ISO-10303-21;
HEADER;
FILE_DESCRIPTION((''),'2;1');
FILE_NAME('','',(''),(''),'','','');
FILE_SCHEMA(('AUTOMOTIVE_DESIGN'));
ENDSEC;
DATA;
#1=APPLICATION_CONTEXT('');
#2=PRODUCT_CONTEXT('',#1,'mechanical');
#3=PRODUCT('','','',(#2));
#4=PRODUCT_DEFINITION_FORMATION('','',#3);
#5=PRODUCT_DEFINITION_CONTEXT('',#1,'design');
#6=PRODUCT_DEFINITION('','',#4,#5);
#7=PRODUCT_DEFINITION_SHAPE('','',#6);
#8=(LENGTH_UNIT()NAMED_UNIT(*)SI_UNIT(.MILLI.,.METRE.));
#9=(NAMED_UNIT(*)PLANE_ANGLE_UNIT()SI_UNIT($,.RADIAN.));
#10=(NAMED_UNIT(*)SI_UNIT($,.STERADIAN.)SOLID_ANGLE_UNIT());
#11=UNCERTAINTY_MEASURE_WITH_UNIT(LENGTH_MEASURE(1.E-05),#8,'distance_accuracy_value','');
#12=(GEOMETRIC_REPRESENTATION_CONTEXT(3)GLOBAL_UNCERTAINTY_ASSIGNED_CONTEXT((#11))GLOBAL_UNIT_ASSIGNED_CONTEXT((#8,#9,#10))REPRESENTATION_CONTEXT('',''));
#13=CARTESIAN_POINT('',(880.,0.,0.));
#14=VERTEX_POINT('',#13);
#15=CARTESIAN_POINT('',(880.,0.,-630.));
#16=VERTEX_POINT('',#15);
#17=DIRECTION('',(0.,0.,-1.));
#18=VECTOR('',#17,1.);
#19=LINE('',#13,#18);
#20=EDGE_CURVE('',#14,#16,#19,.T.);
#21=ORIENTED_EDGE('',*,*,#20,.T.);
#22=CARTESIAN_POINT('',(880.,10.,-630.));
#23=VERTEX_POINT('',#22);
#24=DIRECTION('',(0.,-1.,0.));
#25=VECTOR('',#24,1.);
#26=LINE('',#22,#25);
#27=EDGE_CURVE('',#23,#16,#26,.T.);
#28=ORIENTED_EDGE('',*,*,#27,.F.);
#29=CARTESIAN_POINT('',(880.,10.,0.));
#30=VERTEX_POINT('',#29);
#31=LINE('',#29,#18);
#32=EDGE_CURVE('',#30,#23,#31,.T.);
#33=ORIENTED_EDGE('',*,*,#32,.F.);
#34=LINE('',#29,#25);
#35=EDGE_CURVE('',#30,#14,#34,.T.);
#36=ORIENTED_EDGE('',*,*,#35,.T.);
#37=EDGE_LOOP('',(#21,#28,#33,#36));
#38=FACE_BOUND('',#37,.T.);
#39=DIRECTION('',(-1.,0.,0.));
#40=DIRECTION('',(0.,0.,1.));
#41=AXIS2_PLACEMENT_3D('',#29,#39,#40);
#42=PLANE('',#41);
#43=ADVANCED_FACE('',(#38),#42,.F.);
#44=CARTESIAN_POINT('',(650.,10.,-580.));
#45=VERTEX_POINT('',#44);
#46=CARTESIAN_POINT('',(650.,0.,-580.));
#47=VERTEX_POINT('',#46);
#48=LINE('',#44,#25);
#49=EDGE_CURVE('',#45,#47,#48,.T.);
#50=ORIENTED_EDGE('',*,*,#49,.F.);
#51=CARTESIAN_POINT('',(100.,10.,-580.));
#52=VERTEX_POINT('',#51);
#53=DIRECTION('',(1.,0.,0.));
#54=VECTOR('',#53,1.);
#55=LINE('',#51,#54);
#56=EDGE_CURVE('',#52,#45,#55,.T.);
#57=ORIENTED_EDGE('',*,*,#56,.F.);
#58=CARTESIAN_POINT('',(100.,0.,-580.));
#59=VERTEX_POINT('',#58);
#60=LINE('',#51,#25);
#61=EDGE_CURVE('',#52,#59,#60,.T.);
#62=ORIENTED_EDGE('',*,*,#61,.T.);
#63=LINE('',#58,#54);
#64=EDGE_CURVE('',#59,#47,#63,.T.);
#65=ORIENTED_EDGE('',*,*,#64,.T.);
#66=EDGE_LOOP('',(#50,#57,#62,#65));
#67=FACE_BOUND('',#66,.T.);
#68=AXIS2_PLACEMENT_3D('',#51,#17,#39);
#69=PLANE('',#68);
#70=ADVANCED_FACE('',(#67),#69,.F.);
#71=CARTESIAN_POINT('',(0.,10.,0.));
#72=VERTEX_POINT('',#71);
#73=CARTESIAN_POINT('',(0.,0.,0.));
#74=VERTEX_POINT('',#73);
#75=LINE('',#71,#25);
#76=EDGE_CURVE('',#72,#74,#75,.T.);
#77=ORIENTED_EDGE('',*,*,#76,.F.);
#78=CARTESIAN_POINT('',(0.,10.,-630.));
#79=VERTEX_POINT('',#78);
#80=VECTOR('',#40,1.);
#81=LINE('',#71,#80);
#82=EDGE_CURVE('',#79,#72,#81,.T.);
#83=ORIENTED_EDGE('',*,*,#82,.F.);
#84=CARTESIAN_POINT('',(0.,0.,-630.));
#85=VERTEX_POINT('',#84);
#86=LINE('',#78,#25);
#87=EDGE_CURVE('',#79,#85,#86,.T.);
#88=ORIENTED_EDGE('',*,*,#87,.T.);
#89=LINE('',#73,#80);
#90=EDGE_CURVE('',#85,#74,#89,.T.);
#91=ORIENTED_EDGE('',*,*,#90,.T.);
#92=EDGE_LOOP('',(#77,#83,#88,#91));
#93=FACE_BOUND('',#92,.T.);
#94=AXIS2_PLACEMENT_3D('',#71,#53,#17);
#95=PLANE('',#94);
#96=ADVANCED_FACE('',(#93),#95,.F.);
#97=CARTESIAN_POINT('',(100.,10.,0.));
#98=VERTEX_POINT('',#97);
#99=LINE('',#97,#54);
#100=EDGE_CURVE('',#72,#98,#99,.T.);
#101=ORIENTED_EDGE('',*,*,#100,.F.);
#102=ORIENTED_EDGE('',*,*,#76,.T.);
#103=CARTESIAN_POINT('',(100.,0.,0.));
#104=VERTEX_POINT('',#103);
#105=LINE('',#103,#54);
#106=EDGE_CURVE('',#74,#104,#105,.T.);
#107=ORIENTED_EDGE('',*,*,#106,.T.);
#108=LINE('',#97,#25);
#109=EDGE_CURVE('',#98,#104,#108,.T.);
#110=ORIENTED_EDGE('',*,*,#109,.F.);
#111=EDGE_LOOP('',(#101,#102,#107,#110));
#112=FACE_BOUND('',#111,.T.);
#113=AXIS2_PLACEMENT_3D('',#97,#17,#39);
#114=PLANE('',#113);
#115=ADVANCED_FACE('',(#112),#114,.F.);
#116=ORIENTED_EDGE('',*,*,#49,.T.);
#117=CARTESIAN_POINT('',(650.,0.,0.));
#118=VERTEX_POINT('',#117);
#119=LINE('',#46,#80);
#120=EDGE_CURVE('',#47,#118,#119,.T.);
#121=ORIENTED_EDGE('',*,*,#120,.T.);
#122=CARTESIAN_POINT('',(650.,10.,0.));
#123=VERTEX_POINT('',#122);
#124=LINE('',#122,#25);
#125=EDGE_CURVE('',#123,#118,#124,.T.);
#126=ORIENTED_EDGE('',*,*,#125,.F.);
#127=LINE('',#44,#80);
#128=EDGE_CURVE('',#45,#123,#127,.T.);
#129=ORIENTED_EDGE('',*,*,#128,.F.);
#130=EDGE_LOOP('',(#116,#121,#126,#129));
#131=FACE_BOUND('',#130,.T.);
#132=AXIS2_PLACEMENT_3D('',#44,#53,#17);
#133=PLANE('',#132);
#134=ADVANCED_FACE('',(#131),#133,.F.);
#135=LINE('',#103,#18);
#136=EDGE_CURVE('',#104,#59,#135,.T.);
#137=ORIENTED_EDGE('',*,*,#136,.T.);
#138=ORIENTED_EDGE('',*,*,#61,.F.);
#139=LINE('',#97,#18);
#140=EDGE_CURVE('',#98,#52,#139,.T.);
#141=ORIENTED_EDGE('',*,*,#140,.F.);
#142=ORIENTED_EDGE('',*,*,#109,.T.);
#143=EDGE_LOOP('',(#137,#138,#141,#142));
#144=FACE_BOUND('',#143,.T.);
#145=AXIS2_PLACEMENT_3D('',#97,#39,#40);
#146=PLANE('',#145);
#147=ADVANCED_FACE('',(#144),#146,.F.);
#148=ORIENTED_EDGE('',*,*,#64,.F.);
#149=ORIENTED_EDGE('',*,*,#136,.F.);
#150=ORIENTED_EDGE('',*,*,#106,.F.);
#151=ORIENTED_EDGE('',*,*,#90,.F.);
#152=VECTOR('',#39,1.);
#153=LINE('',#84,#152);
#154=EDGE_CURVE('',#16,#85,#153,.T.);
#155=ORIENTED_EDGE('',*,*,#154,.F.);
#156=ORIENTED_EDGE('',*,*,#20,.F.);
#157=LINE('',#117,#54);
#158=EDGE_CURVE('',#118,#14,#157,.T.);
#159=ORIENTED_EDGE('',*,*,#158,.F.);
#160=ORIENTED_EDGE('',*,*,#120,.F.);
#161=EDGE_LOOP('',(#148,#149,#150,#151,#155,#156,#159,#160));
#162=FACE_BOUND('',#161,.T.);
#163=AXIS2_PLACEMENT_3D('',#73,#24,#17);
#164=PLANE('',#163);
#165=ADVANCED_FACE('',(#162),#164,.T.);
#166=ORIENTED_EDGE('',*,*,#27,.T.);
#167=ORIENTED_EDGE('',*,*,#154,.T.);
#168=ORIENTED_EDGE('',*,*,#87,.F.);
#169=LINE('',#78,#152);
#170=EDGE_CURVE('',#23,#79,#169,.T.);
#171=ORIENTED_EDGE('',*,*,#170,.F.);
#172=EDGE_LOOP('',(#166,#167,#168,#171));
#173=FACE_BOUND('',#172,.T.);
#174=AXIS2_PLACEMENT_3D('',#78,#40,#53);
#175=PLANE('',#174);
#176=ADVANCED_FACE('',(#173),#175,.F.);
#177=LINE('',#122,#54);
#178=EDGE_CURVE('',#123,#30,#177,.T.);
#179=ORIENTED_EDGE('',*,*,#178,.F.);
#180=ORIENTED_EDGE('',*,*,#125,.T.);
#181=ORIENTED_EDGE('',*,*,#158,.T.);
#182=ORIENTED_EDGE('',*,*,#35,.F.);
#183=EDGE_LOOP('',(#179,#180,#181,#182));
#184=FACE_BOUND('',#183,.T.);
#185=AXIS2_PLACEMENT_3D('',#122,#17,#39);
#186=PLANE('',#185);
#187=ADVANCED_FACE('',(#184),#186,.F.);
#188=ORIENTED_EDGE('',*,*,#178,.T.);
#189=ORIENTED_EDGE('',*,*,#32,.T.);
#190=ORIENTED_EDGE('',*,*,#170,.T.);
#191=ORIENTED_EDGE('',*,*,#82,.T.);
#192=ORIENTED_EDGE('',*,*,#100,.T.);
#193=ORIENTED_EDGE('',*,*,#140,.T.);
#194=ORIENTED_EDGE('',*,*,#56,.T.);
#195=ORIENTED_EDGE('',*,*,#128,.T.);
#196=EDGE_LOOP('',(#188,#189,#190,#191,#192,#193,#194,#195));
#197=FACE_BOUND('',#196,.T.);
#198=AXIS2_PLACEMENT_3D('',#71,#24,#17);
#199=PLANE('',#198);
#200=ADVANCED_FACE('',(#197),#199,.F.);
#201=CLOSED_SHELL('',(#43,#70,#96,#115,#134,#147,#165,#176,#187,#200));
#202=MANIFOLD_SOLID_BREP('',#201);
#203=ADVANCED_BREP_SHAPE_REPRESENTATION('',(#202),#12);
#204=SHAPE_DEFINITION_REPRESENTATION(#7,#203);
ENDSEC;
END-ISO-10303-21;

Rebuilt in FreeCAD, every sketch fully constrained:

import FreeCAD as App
import Part
import Sketcher

V = App.Vector

doc = App.newDocument("Part")
body = doc.addObject("PartDesign::Body", "Body")

sketch1 = body.newObject("Sketcher::SketchObject", "Sketch")
sketch1.AttachmentSupport = (doc.getObject("XZ_Plane"), [""])
sketch1.MapMode = "FlatFace"
sketch1.addGeometry([
    Part.LineSegment(V(100, 0, 0), V(100, -580, 0)),
    Part.LineSegment(V(100, -580, 0), V(650, -580, 0)),
    Part.LineSegment(V(650, -580, 0), V(650, 0, 0)),
    Part.LineSegment(V(650, 0, 0), V(880, 0, 0)),
    Part.LineSegment(V(880, 0, 0), V(880, -630, 0)),
    Part.LineSegment(V(880, -630, 0), V(0, -630, 0)),
    Part.LineSegment(V(0, -630, 0), V(0, 0, 0)),
    Part.LineSegment(V(0, 0, 0), V(100, 0, 0)),
], False)
sketch1.addConstraint([
    Sketcher.Constraint("Coincident", 0, 2, 1, 1),
    Sketcher.Constraint("Coincident", 1, 2, 2, 1),
    Sketcher.Constraint("Coincident", 2, 2, 3, 1),
    Sketcher.Constraint("Coincident", 3, 2, 4, 1),
    Sketcher.Constraint("Coincident", 4, 2, 5, 1),
    Sketcher.Constraint("Coincident", 5, 2, 6, 1),
    Sketcher.Constraint("Coincident", 6, 2, 7, 1),
    Sketcher.Constraint("Coincident", 7, 2, 0, 1),
    Sketcher.Constraint("Vertical", 0),
    Sketcher.Constraint("Horizontal", 1),
    Sketcher.Constraint("Vertical", 2),
    Sketcher.Constraint("Horizontal", 3),
    Sketcher.Constraint("Vertical", 4),
    Sketcher.Constraint("Horizontal", 5),
    Sketcher.Constraint("Vertical", 6),
    Sketcher.Constraint("Horizontal", 7),
    Sketcher.Constraint("Coincident", 6, 2, -1, 1),
    Sketcher.Constraint("PointOnObject", 2, 2, -1),
    Sketcher.Constraint("DistanceX", 1, 1, 1, 2, 550.0),
    Sketcher.Constraint("DistanceX", 3, 1, 3, 2, 230.0),
    Sketcher.Constraint("DistanceX", 5, 2, 5, 1, 880.0),
    Sketcher.Constraint("DistanceY", 0, 2, 0, 1, 580.0),
    Sketcher.Constraint("DistanceY", 4, 2, 4, 1, 630.0),
])
pad1 = body.newObject("PartDesign::Pad", "Pad")
pad1.Profile = sketch1
pad1.Length = 10
pad1.Reversed = True

doc.recompute()
